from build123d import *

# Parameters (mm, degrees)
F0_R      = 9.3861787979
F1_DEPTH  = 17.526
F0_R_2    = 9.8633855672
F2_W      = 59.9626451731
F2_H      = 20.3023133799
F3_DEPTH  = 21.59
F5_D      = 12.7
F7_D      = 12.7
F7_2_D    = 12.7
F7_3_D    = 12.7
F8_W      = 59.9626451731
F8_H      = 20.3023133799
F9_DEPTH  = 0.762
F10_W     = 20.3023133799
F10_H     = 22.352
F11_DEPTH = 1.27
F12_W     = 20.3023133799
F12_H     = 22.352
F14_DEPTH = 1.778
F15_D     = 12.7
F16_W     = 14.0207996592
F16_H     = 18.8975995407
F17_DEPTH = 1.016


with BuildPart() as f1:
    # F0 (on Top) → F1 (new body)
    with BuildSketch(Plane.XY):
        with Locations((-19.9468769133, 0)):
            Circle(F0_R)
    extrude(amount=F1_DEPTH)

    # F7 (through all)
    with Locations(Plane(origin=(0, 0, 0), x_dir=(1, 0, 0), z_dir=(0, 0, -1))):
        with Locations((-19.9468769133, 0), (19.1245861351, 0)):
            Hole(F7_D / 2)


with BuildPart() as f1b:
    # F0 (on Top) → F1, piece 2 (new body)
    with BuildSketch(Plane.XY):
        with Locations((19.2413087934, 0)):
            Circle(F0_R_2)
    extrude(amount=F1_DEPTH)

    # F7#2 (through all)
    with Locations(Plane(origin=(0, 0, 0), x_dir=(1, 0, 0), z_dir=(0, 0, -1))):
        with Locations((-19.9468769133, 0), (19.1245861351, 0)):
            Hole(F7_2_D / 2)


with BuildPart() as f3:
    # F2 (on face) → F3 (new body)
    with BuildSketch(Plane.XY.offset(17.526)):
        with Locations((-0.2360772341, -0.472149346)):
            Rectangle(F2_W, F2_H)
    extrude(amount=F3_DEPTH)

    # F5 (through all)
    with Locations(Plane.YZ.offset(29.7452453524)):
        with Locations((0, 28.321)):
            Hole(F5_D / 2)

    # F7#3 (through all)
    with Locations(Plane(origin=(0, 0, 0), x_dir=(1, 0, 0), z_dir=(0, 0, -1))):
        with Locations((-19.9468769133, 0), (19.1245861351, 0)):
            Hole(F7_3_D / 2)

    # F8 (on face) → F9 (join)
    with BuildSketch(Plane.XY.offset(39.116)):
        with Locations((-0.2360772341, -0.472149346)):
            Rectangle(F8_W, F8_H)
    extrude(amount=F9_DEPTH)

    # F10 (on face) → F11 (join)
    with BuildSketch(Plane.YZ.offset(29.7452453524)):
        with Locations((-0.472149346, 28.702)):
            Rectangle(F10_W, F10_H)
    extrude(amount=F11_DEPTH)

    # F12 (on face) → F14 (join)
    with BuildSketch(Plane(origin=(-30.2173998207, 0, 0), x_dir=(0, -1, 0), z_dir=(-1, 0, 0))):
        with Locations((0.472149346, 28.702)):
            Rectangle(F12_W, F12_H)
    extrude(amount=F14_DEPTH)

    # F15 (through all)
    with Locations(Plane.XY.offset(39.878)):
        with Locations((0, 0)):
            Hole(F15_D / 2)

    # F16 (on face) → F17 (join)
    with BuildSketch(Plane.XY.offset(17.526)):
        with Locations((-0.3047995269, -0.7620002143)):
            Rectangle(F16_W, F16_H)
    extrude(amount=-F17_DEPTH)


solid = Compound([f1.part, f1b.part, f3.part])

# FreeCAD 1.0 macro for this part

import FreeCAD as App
import Part
import Sketcher

V = App.Vector
Q = App.Units.Quantity

doc = App.newDocument("Part")
body = doc.addObject("PartDesign::Body", "Body")

sketch1 = doc.addObject("Sketcher::SketchObject", "Sketch")
body.addObject(sketch1)
sketch1.AttachmentSupport = (doc.XY_Plane, [""])
sketch1.MapMode = "FlatFace"
sketch1.addGeometry(Part.Circle(V(-20, 0, 0), V(0, 0, 1), 9), False)
sketch1.addConstraint([
    Sketcher.Constraint("PointOnObject", 0, 3, -1),
    Sketcher.Constraint("Diameter", 0, 18.772358),
    Sketcher.Constraint("DistanceX", 0, 3, -1, 1, 19.946877),
])
pad1 = doc.addObject("PartDesign::Pad", "Pad")
body.addObject(pad1)
pad1.Profile = sketch1
pad1.Length = Q("0.69 in")

sketch2 = doc.addObject("Sketcher::SketchObject", "Sketch001")
body.addObject(sketch2)
sketch2.AttachmentSupport = (doc.XY_Plane, [""])
sketch2.MapMode = "FlatFace"
sketch2.addGeometry([
    Part.Circle(V(-20, 0, 0), V(0, 0, 1), 6),
    Part.Circle(V(19, 0, 0), V(0, 0, 1), 6),
], False)
sketch2.addConstraint([
    Sketcher.Constraint("Equal", 0, 1),
    Sketcher.Constraint("PointOnObject", 0, 3, -1),
    Sketcher.Constraint("PointOnObject", 1, 3, -1),
    Sketcher.Constraint("Diameter", 0, Q("0.5 in")),
    Sketcher.Constraint("DistanceX", 0, 3, -1, 1, 19.946877),
    Sketcher.Constraint("DistanceX", -1, 1, 1, 3, 19.124586),
])
doc.recompute()
hole = doc.addObject("PartDesign::Hole", "Hole")
body.addObject(hole)
hole.Profile = sketch2
hole.ThreadType = "None"
hole.Diameter = Q("0.5 in")
hole.DepthType = "ThroughAll"
hole.Reversed = True
body2 = doc.addObject("PartDesign::Body", "Body001")

sketch3 = doc.addObject("Sketcher::SketchObject", "Sketch002")
body2.addObject(sketch3)
sketch3.AttachmentSupport = (doc.getObject("XY_Plane001"), [""])
sketch3.MapMode = "FlatFace"
sketch3.addGeometry(Part.Circle(V(19, 0, 0), V(0, 0, 1), 10), False)
sketch3.addConstraint([
    Sketcher.Constraint("PointOnObject", 0, 3, -1),
    Sketcher.Constraint("Diameter", 0, 19.726771),
    Sketcher.Constraint("DistanceX", -1, 1, 0, 3, 19.241309),
])
pad2 = doc.addObject("PartDesign::Pad", "Pad001")
body2.addObject(pad2)
pad2.Profile = sketch3
pad2.Length = Q("0.69 in")

sketch4 = doc.addObject("Sketcher::SketchObject", "Sketch003")
body2.addObject(sketch4)
sketch4.AttachmentSupport = (doc.getObject("XY_Plane001"), [""])
sketch4.MapMode = "FlatFace"
sketch4.addGeometry([
    Part.Circle(V(-20, 0, 0), V(0, 0, 1), 6),
    Part.Circle(V(19, 0, 0), V(0, 0, 1), 6),
], False)
sketch4.addConstraint([
    Sketcher.Constraint("Equal", 0, 1),
    Sketcher.Constraint("PointOnObject", 0, 3, -1),
    Sketcher.Constraint("PointOnObject", 1, 3, -1),
    Sketcher.Constraint("Diameter", 0, Q("0.5 in")),
    Sketcher.Constraint("DistanceX", 0, 3, -1, 1, 19.946877),
    Sketcher.Constraint("DistanceX", -1, 1, 1, 3, 19.124586),
])
doc.recompute()
hole2 = doc.addObject("PartDesign::Hole", "Hole001")
body2.addObject(hole2)
hole2.Profile = sketch4
hole2.ThreadType = "None"
hole2.Diameter = Q("0.5 in")
hole2.DepthType = "ThroughAll"
hole2.Reversed = True
body3 = doc.addObject("PartDesign::Body", "Body002")

sketch5 = doc.addObject("Sketcher::SketchObject", "Sketch004")
body3.addObject(sketch5)
sketch5.AttachmentSupport = (doc.getObject("XY_Plane002"), [""])
sketch5.MapMode = "FlatFace"
sketch5.AttachmentOffset = App.Placement(V(0, 0, 0.69 * 25.4), App.Rotation())
sketch5.addGeometry([
    Part.LineSegment(V(-30, 10, 0), V(-30, -11, 0)),
    Part.LineSegment(V(-30, -11, 0), V(30, -11, 0)),
    Part.LineSegment(V(30, -11, 0), V(30, 10, 0)),
    Part.LineSegment(V(30, 10, 0), V(-30, 10, 0)),
], False)
sketch5.addConstraint([
    Sketcher.Constraint("Coincident", 0, 2, 1, 1),
    Sketcher.Constraint("Coincident", 1, 2, 2, 1),
    Sketcher.Constraint("Coincident", 2, 2, 3, 1),
    Sketcher.Constraint("Coincident", 3, 2, 0, 1),
    Sketcher.Constraint("Vertical", 0),
    Sketcher.Constraint("Horizontal", 1),
    Sketcher.Constraint("Vertical", 2),
    Sketcher.Constraint("Horizontal", 3),
    Sketcher.Constraint("DistanceX", 0, 2, -1, 1, 30.2174),
    Sketcher.Constraint("DistanceX", 1, 1, 1, 2, 59.962645),
    Sketcher.Constraint("DistanceY", 0, 2, 0, 1, 20.302313),
    Sketcher.Constraint("DistanceY", 0, 2, -1, 1, 10.623306),
])
pad3 = doc.addObject("PartDesign::Pad", "Pad002")
body3.addObject(pad3)
pad3.Profile = sketch5
pad3.Length = Q("0.85 in")

sketch6 = doc.addObject("Sketcher::SketchObject", "Sketch005")
body3.addObject(sketch6)
sketch6.AttachmentSupport = (doc.getObject("YZ_Plane002"), [""])
sketch6.MapMode = "FlatFace"
sketch6.AttachmentOffset = App.Placement(V(0, 0, 29.745245), App.Rotation())
sketch6.addGeometry(Part.Circle(V(0, 28, 0), V(0, 0, 1), 6), False)
sketch6.addConstraint([
    Sketcher.Constraint("PointOnObject", 0, 3, -2),
    Sketcher.Constraint("Diameter", 0, Q("0.5 in")),
    Sketcher.Constraint("DistanceY", -1, 1, 0, 3, Q("1.115 in")),
])
doc.recompute()
hole3 = doc.addObject("PartDesign::Hole", "Hole002")
body3.addObject(hole3)
hole3.Profile = sketch6
hole3.ThreadType = "None"
hole3.Diameter = Q("0.5 in")
hole3.DepthType = "ThroughAll"

sketch7 = doc.addObject("Sketcher::SketchObject", "Sketch006")
body3.addObject(sketch7)
sketch7.AttachmentSupport = (doc.getObject("XY_Plane002"), [""])
sketch7.MapMode = "FlatFace"
sketch7.addGeometry([
    Part.Circle(V(-20, 0, 0), V(0, 0, 1), 6),
    Part.Circle(V(19, 0, 0), V(0, 0, 1), 6),
], False)
sketch7.addConstraint([
    Sketcher.Constraint("Equal", 0, 1),
    Sketcher.Constraint("PointOnObject", 0, 3, -1),
    Sketcher.Constraint("PointOnObject", 1, 3, -1),
    Sketcher.Constraint("Diameter", 0, Q("0.5 in")),
    Sketcher.Constraint("DistanceX", 0, 3, -1, 1, 19.946877),
    Sketcher.Constraint("DistanceX", -1, 1, 1, 3, 19.124586),
])
doc.recompute()
hole4 = doc.addObject("PartDesign::Hole", "Hole003")
body3.addObject(hole4)
hole4.Profile = sketch7
hole4.ThreadType = "None"
hole4.Diameter = Q("0.5 in")
hole4.DepthType = "ThroughAll"
hole4.Reversed = True

sketch8 = doc.addObject("Sketcher::SketchObject", "Sketch007")
body3.addObject(sketch8)
sketch8.AttachmentSupport = (doc.getObject("XY_Plane002"), [""])
sketch8.MapMode = "FlatFace"
sketch8.AttachmentOffset = App.Placement(V(0, 0, 1.54 * 25.4), App.Rotation())
sketch8.addGeometry([
    Part.LineSegment(V(-30, 10, 0), V(-30, -11, 0)),
    Part.LineSegment(V(-30, -11, 0), V(30, -11, 0)),
    Part.LineSegment(V(30, -11, 0), V(30, 10, 0)),
    Part.LineSegment(V(30, 10, 0), V(-30, 10, 0)),
], False)
sketch8.addConstraint([
    Sketcher.Constraint("Coincident", 0, 2, 1, 1),
    Sketcher.Constraint("Coincident", 1, 2, 2, 1),
    Sketcher.Constraint("Coincident", 2, 2, 3, 1),
    Sketcher.Constraint("Coincident", 3, 2, 0, 1),
    Sketcher.Constraint("Vertical", 0),
    Sketcher.Constraint("Horizontal", 1),
    Sketcher.Constraint("Vertical", 2),
    Sketcher.Constraint("Horizontal", 3),
    Sketcher.Constraint("DistanceX", 0, 2, -1, 1, 30.2174),
    Sketcher.Constraint("DistanceX", 1, 1, 1, 2, 59.962645),
    Sketcher.Constraint("DistanceY", 0, 2, 0, 1, 20.302313),
    Sketcher.Constraint("DistanceY", 0, 2, -1, 1, 10.623306),
])
pad4 = doc.addObject("PartDesign::Pad", "Pad003")
body3.addObject(pad4)
pad4.Profile = sketch8
pad4.Length = Q("0.03 in")

sketch9 = doc.addObject("Sketcher::SketchObject", "Sketch008")
body3.addObject(sketch9)
sketch9.AttachmentSupport = (doc.getObject("YZ_Plane002"), [""])
sketch9.MapMode = "FlatFace"
sketch9.AttachmentOffset = App.Placement(V(0, 0, 29.745245), App.Rotation())
sketch9.addGeometry([
    Part.LineSegment(V(-11, 40, 0), V(-11, 18, 0)),
    Part.LineSegment(V(-11, 18, 0), V(10, 18, 0)),
    Part.LineSegment(V(10, 18, 0), V(10, 40, 0)),
    Part.LineSegment(V(10, 40, 0), V(-11, 40, 0)),
], False)
sketch9.addConstraint([
    Sketcher.Constraint("Coincident", 0, 2, 1, 1),
    Sketcher.Constraint("Coincident", 1, 2, 2, 1),
    Sketcher.Constraint("Coincident", 2, 2, 3, 1),
    Sketcher.Constraint("Coincident", 3, 2, 0, 1),
    Sketcher.Constraint("Vertical", 0),
    Sketcher.Constraint("Horizontal", 1),
    Sketcher.Constraint("Vertical", 2),
    Sketcher.Constraint("Horizontal", 3),
    Sketcher.Constraint("DistanceY", 0, 2, 0, 1, Q("0.88 in")),
    Sketcher.Constraint("DistanceY", -1, 1, 0, 2, Q("0.69 in")),
    Sketcher.Constraint("DistanceX", 1, 1, 1, 2, 20.302313),
    Sketcher.Constraint("DistanceX", 0, 2, -1, 1, 10.623306),
])
pad5 = doc.addObject("PartDesign::Pad", "Pad004")
body3.addObject(pad5)
pad5.Profile = sketch9
pad5.Length = Q("0.05 in")

sketch10 = doc.addObject("Sketcher::SketchObject", "Sketch009")
body3.addObject(sketch10)
sketch10.AttachmentSupport = (doc.getObject("YZ_Plane002"), [""])
sketch10.MapMode = "FlatFace"
sketch10.AttachmentOffset = App.Placement(V(0, 0, -30.2174), App.Rotation())
sketch10.addGeometry([
    Part.LineSegment(V(10, 40, 0), V(10, 18, 0)),
    Part.LineSegment(V(10, 18, 0), V(-11, 18, 0)),
    Part.LineSegment(V(-11, 18, 0), V(-11, 40, 0)),
    Part.LineSegment(V(-11, 40, 0), V(10, 40, 0)),
], False)
sketch10.addConstraint([
    Sketcher.Constraint("Coincident", 0, 2, 1, 1),
    Sketcher.Constraint("Coincident", 1, 2, 2, 1),
    Sketcher.Constraint("Coincident", 2, 2, 3, 1),
    Sketcher.Constraint("Coincident", 3, 2, 0, 1),
    Sketcher.Constraint("Vertical", 0),
    Sketcher.Constraint("Horizontal", 1),
    Sketcher.Constraint("Vertical", 2),
    Sketcher.Constraint("Horizontal", 3),
    Sketcher.Constraint("DistanceY", 0, 2, 0, 1, Q("0.88 in")),
    Sketcher.Constraint("DistanceY", -1, 1, 0, 2, Q("0.69 in")),
    Sketcher.Constraint("DistanceX", 1, 2, 1, 1, 20.302313),
    Sketcher.Constraint("DistanceX", -1, 1, 0, 2, 9.679007),
])
pad6 = doc.addObject("PartDesign::Pad", "Pad005")
body3.addObject(pad6)
pad6.Profile = sketch10
pad6.Length = Q("0.07 in")
pad6.Reversed = True

sketch11 = doc.addObject("Sketcher::SketchObject", "Sketch010")
body3.addObject(sketch11)
sketch11.AttachmentSupport = (doc.getObject("XY_Plane002"), [""])
sketch11.MapMode = "FlatFace"
sketch11.AttachmentOffset = App.Placement(V(0, 0, 1.57 * 25.4), App.Rotation())
sketch11.addGeometry(Part.Circle(V(0, 0, 0), V(0, 0, 1), 6), False)
sketch11.addConstraint([
    Sketcher.Constraint("Coincident", 0, 3, -1, 1),
    Sketcher.Constraint("Diameter", 0, Q("0.5 in")),
])
doc.recompute()
hole5 = doc.addObject("PartDesign::Hole", "Hole004")
body3.addObject(hole5)
hole5.Profile = sketch11
hole5.ThreadType = "None"
hole5.Diameter = Q("0.5 in")
hole5.DepthType = "ThroughAll"

sketch12 = doc.addObject("Sketcher::SketchObject", "Sketch011")
body3.addObject(sketch12)
sketch12.AttachmentSupport = (doc.getObject("XY_Plane002"), [""])
sketch12.MapMode = "FlatFace"
sketch12.AttachmentOffset = App.Placement(V(0, 0, 0.69 * 25.4), App.Rotation())
sketch12.addGeometry([
    Part.LineSegment(V(-7, 9, 0), V(-7, -10, 0)),
    Part.LineSegment(V(-7, -10, 0), V(7, -10, 0)),
    Part.LineSegment(V(7, -10, 0), V(7, 9, 0)),
    Part.LineSegment(V(7, 9, 0), V(-7, 9, 0)),
], False)
sketch12.addConstraint([
    Sketcher.Constraint("Coincident", 0, 2, 1, 1),
    Sketcher.Constraint("Coincident", 1, 2, 2, 1),
    Sketcher.Constraint("Coincident", 2, 2, 3, 1),
    Sketcher.Constraint("Coincident", 3, 2, 0, 1),
    Sketcher.Constraint("Vertical", 0),
    Sketcher.Constraint("Horizontal", 1),
    Sketcher.Constraint("Vertical", 2),
    Sketcher.Constraint("Horizontal", 3),
    Sketcher.Constraint("DistanceX", 1, 1, 1, 2, Q("0.552 in")),
    Sketcher.Constraint("DistanceY", 0, 2, 0, 1, Q("0.744 in")),
    Sketcher.Constraint("DistanceX", 0, 2, -1, 1, Q("0.288 in")),
    Sketcher.Constraint("DistanceY", 0, 2, -1, 1, Q("0.402 in")),
])
pad7 = doc.addObject("PartDesign::Pad", "Pad006")
body3.addObject(pad7)
pad7.Profile = sketch12
pad7.Length = Q("0.04 in")
pad7.Reversed = True

doc.recompute()
